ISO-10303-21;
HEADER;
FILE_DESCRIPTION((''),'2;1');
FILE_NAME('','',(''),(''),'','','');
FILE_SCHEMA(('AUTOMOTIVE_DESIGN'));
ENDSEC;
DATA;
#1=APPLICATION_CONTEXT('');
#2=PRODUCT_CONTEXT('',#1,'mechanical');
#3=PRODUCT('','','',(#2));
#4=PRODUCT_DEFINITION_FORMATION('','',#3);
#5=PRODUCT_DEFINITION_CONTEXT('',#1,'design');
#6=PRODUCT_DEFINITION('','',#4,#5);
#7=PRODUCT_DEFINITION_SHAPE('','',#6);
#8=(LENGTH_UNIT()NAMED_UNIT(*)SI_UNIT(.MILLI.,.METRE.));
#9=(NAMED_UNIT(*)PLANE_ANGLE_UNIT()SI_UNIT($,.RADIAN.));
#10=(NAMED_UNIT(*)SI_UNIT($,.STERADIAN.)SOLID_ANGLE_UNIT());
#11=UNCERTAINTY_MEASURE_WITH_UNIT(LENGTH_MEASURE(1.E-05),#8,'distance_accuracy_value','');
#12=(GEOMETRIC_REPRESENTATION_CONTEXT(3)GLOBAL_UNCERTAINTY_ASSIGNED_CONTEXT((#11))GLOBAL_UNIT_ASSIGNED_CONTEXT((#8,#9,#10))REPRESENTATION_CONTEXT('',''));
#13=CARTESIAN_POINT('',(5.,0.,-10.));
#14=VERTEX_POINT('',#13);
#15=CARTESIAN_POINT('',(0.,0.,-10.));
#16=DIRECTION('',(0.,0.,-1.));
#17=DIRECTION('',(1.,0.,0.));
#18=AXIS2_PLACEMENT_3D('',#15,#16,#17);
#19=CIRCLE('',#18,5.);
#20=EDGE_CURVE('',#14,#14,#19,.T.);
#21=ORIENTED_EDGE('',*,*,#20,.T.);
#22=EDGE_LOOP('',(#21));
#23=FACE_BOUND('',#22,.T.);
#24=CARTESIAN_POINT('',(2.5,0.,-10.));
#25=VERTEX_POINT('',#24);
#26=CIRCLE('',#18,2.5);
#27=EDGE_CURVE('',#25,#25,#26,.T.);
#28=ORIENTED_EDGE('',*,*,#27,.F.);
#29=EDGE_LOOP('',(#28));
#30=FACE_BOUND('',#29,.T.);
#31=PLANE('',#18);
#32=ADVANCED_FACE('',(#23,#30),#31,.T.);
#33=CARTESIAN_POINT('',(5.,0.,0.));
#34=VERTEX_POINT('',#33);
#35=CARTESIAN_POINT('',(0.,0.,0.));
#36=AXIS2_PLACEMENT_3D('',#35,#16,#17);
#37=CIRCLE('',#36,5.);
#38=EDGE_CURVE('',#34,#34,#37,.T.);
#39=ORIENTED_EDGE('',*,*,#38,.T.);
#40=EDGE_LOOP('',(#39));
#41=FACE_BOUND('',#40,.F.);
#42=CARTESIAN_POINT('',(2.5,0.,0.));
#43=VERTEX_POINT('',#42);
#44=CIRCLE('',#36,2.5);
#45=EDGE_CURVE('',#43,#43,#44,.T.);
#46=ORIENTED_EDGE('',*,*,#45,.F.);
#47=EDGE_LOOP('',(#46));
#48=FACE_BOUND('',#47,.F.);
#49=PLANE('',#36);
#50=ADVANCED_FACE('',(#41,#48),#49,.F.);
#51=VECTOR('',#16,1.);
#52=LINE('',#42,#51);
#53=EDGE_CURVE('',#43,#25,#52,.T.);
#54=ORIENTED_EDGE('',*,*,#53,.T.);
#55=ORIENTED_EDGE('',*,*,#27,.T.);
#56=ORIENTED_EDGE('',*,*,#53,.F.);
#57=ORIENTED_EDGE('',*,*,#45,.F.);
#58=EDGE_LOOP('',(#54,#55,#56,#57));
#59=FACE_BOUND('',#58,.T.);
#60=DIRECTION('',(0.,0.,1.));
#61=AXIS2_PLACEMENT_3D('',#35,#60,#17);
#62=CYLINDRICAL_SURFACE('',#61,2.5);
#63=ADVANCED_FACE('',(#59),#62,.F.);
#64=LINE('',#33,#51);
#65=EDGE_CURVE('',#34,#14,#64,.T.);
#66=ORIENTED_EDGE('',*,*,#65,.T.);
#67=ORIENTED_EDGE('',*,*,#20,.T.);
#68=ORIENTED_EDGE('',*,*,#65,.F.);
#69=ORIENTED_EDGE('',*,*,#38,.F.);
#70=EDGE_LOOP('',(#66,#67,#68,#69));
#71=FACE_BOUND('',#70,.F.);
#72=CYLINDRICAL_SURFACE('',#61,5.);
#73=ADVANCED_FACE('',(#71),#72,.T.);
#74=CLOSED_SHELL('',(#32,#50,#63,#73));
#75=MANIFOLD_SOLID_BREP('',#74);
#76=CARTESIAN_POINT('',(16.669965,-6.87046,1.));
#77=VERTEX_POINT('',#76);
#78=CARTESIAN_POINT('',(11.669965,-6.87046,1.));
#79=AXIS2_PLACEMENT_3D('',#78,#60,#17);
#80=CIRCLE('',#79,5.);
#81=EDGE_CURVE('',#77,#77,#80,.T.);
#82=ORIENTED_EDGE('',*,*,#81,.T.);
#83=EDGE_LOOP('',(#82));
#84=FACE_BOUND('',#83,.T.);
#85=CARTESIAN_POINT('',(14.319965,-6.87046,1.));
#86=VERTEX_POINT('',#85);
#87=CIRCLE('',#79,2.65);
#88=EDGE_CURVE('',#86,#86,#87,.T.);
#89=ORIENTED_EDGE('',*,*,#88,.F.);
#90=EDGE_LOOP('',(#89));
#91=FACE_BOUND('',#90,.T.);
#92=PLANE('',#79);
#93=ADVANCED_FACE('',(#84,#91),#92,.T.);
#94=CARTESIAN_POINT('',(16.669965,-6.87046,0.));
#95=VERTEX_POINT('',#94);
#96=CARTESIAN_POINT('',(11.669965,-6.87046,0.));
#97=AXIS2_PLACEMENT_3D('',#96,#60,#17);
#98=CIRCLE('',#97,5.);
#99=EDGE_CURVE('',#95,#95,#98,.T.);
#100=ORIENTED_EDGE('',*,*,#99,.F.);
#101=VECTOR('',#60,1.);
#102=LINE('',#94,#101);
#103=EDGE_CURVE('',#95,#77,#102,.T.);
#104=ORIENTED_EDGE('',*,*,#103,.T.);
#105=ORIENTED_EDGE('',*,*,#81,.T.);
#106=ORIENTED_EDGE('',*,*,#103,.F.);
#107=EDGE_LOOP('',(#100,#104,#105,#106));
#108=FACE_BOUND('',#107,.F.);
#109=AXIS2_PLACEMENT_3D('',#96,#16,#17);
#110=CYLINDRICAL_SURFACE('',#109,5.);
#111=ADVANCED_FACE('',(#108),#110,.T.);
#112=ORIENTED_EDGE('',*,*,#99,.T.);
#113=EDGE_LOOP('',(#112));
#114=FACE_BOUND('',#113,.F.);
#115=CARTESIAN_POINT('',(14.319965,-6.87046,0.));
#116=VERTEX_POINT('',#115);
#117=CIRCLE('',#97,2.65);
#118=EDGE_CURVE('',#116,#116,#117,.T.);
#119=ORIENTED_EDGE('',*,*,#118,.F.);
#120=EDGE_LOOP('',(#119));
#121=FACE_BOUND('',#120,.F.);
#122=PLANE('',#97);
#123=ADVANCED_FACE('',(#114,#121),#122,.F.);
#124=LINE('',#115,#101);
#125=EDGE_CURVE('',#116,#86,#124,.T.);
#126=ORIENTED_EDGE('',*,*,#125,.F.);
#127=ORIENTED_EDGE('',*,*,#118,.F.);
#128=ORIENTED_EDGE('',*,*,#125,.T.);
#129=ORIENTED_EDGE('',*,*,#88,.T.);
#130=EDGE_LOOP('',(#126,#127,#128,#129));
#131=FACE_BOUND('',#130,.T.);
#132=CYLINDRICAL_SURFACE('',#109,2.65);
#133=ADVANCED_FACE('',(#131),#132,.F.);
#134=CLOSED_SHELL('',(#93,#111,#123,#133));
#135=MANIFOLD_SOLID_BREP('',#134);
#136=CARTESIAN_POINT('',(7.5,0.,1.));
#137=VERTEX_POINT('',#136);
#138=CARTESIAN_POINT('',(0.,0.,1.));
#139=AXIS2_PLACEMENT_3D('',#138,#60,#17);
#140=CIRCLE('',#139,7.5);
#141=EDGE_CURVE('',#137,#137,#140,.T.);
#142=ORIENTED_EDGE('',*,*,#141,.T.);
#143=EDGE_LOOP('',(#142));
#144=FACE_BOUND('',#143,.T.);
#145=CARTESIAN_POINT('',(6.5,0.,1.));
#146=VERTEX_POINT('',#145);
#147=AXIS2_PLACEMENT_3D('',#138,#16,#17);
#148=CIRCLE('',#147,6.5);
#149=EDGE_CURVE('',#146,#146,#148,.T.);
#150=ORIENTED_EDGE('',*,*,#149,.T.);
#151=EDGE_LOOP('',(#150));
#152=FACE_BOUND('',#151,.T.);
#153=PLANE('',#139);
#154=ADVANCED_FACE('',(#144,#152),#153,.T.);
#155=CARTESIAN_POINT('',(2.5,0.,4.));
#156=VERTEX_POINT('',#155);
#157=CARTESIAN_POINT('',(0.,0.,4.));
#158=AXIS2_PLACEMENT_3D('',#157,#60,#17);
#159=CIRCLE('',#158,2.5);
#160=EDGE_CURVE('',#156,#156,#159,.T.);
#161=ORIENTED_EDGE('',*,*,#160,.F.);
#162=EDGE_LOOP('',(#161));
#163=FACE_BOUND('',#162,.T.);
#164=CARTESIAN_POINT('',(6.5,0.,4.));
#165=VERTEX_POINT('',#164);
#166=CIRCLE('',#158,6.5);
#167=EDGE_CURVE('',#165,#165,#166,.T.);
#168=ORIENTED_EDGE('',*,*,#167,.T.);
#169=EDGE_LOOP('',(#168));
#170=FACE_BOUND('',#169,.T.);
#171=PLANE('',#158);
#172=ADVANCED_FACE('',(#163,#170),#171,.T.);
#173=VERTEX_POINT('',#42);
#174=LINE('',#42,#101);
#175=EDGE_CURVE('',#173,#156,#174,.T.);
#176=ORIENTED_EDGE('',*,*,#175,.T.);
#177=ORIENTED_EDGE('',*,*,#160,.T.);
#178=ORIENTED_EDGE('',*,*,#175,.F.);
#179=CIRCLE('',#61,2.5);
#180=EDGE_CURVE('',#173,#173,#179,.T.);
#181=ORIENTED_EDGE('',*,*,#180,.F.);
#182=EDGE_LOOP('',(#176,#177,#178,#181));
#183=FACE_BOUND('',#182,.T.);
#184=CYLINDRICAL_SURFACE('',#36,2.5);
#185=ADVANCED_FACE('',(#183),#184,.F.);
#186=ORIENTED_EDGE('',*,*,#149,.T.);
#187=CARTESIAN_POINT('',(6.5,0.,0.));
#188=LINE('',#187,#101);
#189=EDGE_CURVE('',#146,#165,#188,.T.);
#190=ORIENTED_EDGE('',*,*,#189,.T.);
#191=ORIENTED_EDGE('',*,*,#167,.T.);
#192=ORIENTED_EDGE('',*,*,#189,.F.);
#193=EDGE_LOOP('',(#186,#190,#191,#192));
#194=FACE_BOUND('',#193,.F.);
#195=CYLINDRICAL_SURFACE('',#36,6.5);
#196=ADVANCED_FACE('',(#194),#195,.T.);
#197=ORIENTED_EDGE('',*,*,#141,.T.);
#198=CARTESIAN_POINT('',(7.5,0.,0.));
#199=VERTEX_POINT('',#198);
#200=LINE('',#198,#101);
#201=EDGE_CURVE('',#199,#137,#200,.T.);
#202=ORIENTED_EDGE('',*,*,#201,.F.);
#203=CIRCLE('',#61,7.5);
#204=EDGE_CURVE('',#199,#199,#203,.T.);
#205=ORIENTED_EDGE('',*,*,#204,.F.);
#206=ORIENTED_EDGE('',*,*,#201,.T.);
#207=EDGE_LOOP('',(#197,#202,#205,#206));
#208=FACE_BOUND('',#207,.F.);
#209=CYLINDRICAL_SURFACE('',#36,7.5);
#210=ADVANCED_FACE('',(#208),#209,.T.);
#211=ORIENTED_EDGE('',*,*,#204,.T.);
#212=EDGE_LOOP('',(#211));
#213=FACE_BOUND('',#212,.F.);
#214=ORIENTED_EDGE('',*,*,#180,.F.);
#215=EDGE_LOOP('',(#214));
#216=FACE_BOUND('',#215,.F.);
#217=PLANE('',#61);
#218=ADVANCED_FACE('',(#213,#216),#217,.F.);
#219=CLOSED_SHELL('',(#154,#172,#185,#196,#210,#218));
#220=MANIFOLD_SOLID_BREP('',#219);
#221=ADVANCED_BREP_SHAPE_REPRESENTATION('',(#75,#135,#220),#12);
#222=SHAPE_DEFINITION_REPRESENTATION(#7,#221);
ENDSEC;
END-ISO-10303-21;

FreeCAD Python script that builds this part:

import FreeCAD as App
import Part
import Sketcher
Q = App.Units.Quantity

doc = App.newDocument("Part")
body = doc.addObject("PartDesign::Body", "Body")

sketch1 = body.newObject("Sketcher::SketchObject", "Sketch")
sketch1.AttachmentSupport = (doc.getObject("XY_Plane"), [""])
sketch1.MapMode = "FlatFace"
sketch1.addGeometry([
    Part.Circle(App.Vector(0, 0, 0), App.Vector(0, 0, 1), 7.5),
    Part.Circle(App.Vector(0, 0, 0), App.Vector(0, 0, 1), 2.5),
], False)
sketch1.addConstraint([
    Sketcher.Constraint("Coincident", 0, 3, -1, 1),
    Sketcher.Constraint("Coincident", 1, 3, -1, 1),
    Sketcher.Constraint("Diameter", 0, Q("15 mm")),
    Sketcher.Constraint("Diameter", 1, Q("5 mm")),
])
pad1 = body.newObject("PartDesign::Pad", "Pad")
pad1.Profile = sketch1
pad1.Length = 1

sketch2 = body.newObject("Sketcher::SketchObject", "Sketch001")
sketch2.AttachmentSupport = (doc.getObject("XY_Plane"), [""])
sketch2.MapMode = "FlatFace"
sketch2.addGeometry([
    Part.Circle(App.Vector(0, 0, 0), App.Vector(0, 0, 1), 6.5),
    Part.Circle(App.Vector(0, 0, 0), App.Vector(0, 0, 1), 2.5),
], False)
sketch2.addConstraint([
    Sketcher.Constraint("Coincident", 0, 3, -1, 1),
    Sketcher.Constraint("Coincident", 1, 3, -1, 1),
    Sketcher.Constraint("Diameter", 0, Q("13 mm")),
    Sketcher.Constraint("Diameter", 1, Q("5 mm")),
])
pad2 = body.newObject("PartDesign::Pad", "Pad001")
pad2.Profile = sketch2
pad2.Length = 4
body2 = doc.addObject("PartDesign::Body", "Body001")

sketch3 = body2.newObject("Sketcher::SketchObject", "Sketch002")
sketch3.AttachmentSupport = (doc.getObject("XY_Plane001"), [""])
sketch3.MapMode = "FlatFace"
sketch3.addGeometry([
    Part.Circle(App.Vector(0, 0, 0), App.Vector(0, 0, 1), 5),
    Part.Circle(App.Vector(0, 0, 0), App.Vector(0, 0, 1), 2.5),
], False)
sketch3.addConstraint([
    Sketcher.Constraint("Coincident", 0, 3, -1, 1),
    Sketcher.Constraint("Coincident", 1, 3, -1, 1),
    Sketcher.Constraint("Diameter", 0, Q("10 mm")),
    Sketcher.Constraint("Diameter", 1, Q("5 mm")),
])
pad3 = body2.newObject("PartDesign::Pad", "Pad002")
pad3.Profile = sketch3
pad3.Length = 10
pad3.Reversed = True
body3 = doc.addObject("PartDesign::Body", "Body002")

sketch4 = body3.newObject("Sketcher::SketchObject", "Sketch003")
sketch4.AttachmentSupport = (doc.getObject("XY_Plane002"), [""])
sketch4.MapMode = "FlatFace"
sketch4.addGeometry([
    Part.Circle(App.Vector(11.7, -6.9, 0), App.Vector(0, 0, 1), 5),
    Part.Circle(App.Vector(11.7, -6.9, 0), App.Vector(0, 0, 1), 2.6),
], False)
sketch4.addConstraint([
    Sketcher.Constraint("Coincident", 1, 3, 0, 3),
    Sketcher.Constraint("Diameter", 0, Q("10 mm")),
    Sketcher.Constraint("Diameter", 1, Q("5.3 mm")),
    Sketcher.Constraint("DistanceY", 0, 3, -1, 1, Q("6.87046 mm")),
    Sketcher.Constraint("DistanceX", -1, 1, 0, 3, Q("11.669965 mm")),
])
pad4 = body3.newObject("PartDesign::Pad", "Pad003")
pad4.Profile = sketch4
pad4.Length = 1

doc.recompute()
